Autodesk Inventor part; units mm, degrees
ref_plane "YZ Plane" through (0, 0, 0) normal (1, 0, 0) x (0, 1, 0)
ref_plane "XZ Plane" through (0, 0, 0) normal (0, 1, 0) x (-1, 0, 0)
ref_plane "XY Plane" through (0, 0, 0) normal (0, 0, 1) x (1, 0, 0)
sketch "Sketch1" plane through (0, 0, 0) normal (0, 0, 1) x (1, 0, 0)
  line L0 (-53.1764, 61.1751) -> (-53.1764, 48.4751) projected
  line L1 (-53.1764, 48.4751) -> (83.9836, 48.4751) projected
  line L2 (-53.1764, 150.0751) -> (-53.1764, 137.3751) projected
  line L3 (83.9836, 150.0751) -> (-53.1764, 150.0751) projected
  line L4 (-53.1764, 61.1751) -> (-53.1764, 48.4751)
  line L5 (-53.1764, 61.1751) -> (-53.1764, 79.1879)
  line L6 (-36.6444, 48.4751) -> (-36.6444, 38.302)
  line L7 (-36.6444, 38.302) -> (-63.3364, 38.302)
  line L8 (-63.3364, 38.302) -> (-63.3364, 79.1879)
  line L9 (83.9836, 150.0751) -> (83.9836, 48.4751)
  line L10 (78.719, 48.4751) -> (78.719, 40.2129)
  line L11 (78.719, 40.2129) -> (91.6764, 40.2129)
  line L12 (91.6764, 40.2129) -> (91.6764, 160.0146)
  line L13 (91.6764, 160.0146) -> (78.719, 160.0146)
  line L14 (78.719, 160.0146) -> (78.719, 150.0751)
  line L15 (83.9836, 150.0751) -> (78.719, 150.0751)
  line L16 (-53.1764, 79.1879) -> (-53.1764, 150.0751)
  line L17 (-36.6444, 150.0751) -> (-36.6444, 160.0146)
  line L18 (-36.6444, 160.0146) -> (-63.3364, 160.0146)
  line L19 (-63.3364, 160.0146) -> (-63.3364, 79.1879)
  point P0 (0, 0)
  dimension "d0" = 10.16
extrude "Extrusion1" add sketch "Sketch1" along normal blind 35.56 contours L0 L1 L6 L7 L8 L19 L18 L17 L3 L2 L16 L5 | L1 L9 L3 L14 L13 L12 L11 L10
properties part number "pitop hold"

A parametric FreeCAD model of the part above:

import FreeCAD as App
import Part
import Sketcher
from FreeCAD import Vector
Q = App.Units.Quantity

doc = App.newDocument("Part")
params = doc.addObject("Spreadsheet::Sheet", "Params")
for row, (alias, value) in enumerate([
    ("sketch1_height", "4 in"),
    ("pad1_length", "1.4 in"),
], start=1):
    params.set(f"A{row}", alias)
    params.set(f"B{row}", "=" + value)
    params.setAlias(f"B{row}", alias)

body = doc.addObject("PartDesign::Body", "Body")
body.AllowCompound = True

sketch1 = body.newObject("Sketcher::SketchObject", "Sketch")
sketch1.AttachmentSupport = (doc.getObject("XY_Plane"), [""])
sketch1.MapMode = "FlatFace"
sketch1.addGeometry([
    Part.LineSegment(Vector(-53, 48, 0), Vector(-53, 150, 0)),
    Part.LineSegment(Vector(-53, 150, 0), Vector(-37, 150, 0)),
    Part.LineSegment(Vector(-37, 150, 0), Vector(-37, 160, 0)),
    Part.LineSegment(Vector(-37, 160, 0), Vector(-63, 160, 0)),
    Part.LineSegment(Vector(-63, 160, 0), Vector(-63, 38, 0)),
    Part.LineSegment(Vector(-63, 38, 0), Vector(-37, 38, 0)),
    Part.LineSegment(Vector(-37, 38, 0), Vector(-37, 48, 0)),
    Part.LineSegment(Vector(-37, 48, 0), Vector(-53, 48, 0)),
    Part.LineSegment(Vector(84, 48, 0), Vector(79, 48, 0)),
    Part.LineSegment(Vector(79, 48, 0), Vector(79, 40, 0)),
    Part.LineSegment(Vector(79, 40, 0), Vector(92, 40, 0)),
    Part.LineSegment(Vector(92, 40, 0), Vector(92, 160, 0)),
    Part.LineSegment(Vector(92, 160, 0), Vector(79, 160, 0)),
    Part.LineSegment(Vector(79, 160, 0), Vector(79, 150, 0)),
    Part.LineSegment(Vector(79, 150, 0), Vector(84, 150, 0)),
    Part.LineSegment(Vector(84, 150, 0), Vector(84, 48, 0)),
], False)
sketch1.addConstraint([
    Sketcher.Constraint("Coincident", 0, 2, 1, 1),
    Sketcher.Constraint("Coincident", 1, 2, 2, 1),
    Sketcher.Constraint("Coincident", 2, 2, 3, 1),
    Sketcher.Constraint("Coincident", 3, 2, 4, 1),
    Sketcher.Constraint("Coincident", 4, 2, 5, 1),
    Sketcher.Constraint("Coincident", 5, 2, 6, 1),
    Sketcher.Constraint("Coincident", 6, 2, 7, 1),
    Sketcher.Constraint("Coincident", 7, 2, 0, 1),
    Sketcher.Constraint("Coincident", 8, 2, 9, 1),
    Sketcher.Constraint("Coincident", 9, 2, 10, 1),
    Sketcher.Constraint("Coincident", 10, 2, 11, 1),
    Sketcher.Constraint("Coincident", 11, 2, 12, 1),
    Sketcher.Constraint("Coincident", 12, 2, 13, 1),
    Sketcher.Constraint("Coincident", 13, 2, 14, 1),
    Sketcher.Constraint("Coincident", 14, 2, 15, 1),
    Sketcher.Constraint("Coincident", 15, 2, 8, 1),
    Sketcher.Constraint("Vertical", 0),
    Sketcher.Constraint("Horizontal", 1),
    Sketcher.Constraint("Vertical", 2),
    Sketcher.Constraint("Horizontal", 3),
    Sketcher.Constraint("Vertical", 4),
    Sketcher.Constraint("Horizontal", 5),
    Sketcher.Constraint("Vertical", 6),
    Sketcher.Constraint("Horizontal", 7),
    Sketcher.Constraint("Horizontal", 8),
    Sketcher.Constraint("Vertical", 9),
    Sketcher.Constraint("Horizontal", 10),
    Sketcher.Constraint("Vertical", 11),
    Sketcher.Constraint("Horizontal", 12),
    Sketcher.Constraint("Vertical", 13),
    Sketcher.Constraint("Horizontal", 14),
    Sketcher.Constraint("Vertical", 15),
    Sketcher.Constraint("Horizontal", 7, 2, 8, 2),
    Sketcher.Constraint("Horizontal", 3, 2, 11, 2),
    Sketcher.Constraint("Horizontal", 1, 2, 13, 2),
    Sketcher.Constraint("Vertical", 2, 2, 5, 2),
    Sketcher.Constraint("Vertical", 9, 2, 12, 2),
    Sketcher.Constraint("DistanceX", 3, 2, 0, 2, Q("0.4 in")),
    Sketcher.Constraint("DistanceY", 0, 1, 0, 2, Q("4 in")),
    Sketcher.Constraint("DistanceY", 11, 1, 11, 2, Q("4.7166 in")),
    Sketcher.Constraint("DistanceX", 5, 2, 10, 2, Q("5.052 in")),
    Sketcher.Constraint("DistanceX", 1, 1, 1, 2, Q("16.532 mm")),
    Sketcher.Constraint("DistanceX", 8, 2, 8, 1, Q("5.2646 mm")),
    Sketcher.Constraint("DistanceX", 10, 1, 10, 2, Q("12.9574 mm")),
    Sketcher.Constraint("DistanceY", 2, 1, 2, 2, Q("9.9395 mm")),
    Sketcher.Constraint("DistanceY", 4, 2, 4, 1, Q("121.7126 mm")),
    Sketcher.Constraint("DistanceX", 1, 2, -1, 1, Q("1.4427 in")),
    Sketcher.Constraint("DistanceY", -1, 1, 0, 2, Q("150.075 mm")),
])
sketch1.setExpression("Constraints[38]", "Params.sketch1_height")
pad1 = body.newObject("PartDesign::Pad", "Pad")
pad1.Profile = sketch1
pad1.setExpression("Length", "Params.pad1_length")

doc.recompute()
